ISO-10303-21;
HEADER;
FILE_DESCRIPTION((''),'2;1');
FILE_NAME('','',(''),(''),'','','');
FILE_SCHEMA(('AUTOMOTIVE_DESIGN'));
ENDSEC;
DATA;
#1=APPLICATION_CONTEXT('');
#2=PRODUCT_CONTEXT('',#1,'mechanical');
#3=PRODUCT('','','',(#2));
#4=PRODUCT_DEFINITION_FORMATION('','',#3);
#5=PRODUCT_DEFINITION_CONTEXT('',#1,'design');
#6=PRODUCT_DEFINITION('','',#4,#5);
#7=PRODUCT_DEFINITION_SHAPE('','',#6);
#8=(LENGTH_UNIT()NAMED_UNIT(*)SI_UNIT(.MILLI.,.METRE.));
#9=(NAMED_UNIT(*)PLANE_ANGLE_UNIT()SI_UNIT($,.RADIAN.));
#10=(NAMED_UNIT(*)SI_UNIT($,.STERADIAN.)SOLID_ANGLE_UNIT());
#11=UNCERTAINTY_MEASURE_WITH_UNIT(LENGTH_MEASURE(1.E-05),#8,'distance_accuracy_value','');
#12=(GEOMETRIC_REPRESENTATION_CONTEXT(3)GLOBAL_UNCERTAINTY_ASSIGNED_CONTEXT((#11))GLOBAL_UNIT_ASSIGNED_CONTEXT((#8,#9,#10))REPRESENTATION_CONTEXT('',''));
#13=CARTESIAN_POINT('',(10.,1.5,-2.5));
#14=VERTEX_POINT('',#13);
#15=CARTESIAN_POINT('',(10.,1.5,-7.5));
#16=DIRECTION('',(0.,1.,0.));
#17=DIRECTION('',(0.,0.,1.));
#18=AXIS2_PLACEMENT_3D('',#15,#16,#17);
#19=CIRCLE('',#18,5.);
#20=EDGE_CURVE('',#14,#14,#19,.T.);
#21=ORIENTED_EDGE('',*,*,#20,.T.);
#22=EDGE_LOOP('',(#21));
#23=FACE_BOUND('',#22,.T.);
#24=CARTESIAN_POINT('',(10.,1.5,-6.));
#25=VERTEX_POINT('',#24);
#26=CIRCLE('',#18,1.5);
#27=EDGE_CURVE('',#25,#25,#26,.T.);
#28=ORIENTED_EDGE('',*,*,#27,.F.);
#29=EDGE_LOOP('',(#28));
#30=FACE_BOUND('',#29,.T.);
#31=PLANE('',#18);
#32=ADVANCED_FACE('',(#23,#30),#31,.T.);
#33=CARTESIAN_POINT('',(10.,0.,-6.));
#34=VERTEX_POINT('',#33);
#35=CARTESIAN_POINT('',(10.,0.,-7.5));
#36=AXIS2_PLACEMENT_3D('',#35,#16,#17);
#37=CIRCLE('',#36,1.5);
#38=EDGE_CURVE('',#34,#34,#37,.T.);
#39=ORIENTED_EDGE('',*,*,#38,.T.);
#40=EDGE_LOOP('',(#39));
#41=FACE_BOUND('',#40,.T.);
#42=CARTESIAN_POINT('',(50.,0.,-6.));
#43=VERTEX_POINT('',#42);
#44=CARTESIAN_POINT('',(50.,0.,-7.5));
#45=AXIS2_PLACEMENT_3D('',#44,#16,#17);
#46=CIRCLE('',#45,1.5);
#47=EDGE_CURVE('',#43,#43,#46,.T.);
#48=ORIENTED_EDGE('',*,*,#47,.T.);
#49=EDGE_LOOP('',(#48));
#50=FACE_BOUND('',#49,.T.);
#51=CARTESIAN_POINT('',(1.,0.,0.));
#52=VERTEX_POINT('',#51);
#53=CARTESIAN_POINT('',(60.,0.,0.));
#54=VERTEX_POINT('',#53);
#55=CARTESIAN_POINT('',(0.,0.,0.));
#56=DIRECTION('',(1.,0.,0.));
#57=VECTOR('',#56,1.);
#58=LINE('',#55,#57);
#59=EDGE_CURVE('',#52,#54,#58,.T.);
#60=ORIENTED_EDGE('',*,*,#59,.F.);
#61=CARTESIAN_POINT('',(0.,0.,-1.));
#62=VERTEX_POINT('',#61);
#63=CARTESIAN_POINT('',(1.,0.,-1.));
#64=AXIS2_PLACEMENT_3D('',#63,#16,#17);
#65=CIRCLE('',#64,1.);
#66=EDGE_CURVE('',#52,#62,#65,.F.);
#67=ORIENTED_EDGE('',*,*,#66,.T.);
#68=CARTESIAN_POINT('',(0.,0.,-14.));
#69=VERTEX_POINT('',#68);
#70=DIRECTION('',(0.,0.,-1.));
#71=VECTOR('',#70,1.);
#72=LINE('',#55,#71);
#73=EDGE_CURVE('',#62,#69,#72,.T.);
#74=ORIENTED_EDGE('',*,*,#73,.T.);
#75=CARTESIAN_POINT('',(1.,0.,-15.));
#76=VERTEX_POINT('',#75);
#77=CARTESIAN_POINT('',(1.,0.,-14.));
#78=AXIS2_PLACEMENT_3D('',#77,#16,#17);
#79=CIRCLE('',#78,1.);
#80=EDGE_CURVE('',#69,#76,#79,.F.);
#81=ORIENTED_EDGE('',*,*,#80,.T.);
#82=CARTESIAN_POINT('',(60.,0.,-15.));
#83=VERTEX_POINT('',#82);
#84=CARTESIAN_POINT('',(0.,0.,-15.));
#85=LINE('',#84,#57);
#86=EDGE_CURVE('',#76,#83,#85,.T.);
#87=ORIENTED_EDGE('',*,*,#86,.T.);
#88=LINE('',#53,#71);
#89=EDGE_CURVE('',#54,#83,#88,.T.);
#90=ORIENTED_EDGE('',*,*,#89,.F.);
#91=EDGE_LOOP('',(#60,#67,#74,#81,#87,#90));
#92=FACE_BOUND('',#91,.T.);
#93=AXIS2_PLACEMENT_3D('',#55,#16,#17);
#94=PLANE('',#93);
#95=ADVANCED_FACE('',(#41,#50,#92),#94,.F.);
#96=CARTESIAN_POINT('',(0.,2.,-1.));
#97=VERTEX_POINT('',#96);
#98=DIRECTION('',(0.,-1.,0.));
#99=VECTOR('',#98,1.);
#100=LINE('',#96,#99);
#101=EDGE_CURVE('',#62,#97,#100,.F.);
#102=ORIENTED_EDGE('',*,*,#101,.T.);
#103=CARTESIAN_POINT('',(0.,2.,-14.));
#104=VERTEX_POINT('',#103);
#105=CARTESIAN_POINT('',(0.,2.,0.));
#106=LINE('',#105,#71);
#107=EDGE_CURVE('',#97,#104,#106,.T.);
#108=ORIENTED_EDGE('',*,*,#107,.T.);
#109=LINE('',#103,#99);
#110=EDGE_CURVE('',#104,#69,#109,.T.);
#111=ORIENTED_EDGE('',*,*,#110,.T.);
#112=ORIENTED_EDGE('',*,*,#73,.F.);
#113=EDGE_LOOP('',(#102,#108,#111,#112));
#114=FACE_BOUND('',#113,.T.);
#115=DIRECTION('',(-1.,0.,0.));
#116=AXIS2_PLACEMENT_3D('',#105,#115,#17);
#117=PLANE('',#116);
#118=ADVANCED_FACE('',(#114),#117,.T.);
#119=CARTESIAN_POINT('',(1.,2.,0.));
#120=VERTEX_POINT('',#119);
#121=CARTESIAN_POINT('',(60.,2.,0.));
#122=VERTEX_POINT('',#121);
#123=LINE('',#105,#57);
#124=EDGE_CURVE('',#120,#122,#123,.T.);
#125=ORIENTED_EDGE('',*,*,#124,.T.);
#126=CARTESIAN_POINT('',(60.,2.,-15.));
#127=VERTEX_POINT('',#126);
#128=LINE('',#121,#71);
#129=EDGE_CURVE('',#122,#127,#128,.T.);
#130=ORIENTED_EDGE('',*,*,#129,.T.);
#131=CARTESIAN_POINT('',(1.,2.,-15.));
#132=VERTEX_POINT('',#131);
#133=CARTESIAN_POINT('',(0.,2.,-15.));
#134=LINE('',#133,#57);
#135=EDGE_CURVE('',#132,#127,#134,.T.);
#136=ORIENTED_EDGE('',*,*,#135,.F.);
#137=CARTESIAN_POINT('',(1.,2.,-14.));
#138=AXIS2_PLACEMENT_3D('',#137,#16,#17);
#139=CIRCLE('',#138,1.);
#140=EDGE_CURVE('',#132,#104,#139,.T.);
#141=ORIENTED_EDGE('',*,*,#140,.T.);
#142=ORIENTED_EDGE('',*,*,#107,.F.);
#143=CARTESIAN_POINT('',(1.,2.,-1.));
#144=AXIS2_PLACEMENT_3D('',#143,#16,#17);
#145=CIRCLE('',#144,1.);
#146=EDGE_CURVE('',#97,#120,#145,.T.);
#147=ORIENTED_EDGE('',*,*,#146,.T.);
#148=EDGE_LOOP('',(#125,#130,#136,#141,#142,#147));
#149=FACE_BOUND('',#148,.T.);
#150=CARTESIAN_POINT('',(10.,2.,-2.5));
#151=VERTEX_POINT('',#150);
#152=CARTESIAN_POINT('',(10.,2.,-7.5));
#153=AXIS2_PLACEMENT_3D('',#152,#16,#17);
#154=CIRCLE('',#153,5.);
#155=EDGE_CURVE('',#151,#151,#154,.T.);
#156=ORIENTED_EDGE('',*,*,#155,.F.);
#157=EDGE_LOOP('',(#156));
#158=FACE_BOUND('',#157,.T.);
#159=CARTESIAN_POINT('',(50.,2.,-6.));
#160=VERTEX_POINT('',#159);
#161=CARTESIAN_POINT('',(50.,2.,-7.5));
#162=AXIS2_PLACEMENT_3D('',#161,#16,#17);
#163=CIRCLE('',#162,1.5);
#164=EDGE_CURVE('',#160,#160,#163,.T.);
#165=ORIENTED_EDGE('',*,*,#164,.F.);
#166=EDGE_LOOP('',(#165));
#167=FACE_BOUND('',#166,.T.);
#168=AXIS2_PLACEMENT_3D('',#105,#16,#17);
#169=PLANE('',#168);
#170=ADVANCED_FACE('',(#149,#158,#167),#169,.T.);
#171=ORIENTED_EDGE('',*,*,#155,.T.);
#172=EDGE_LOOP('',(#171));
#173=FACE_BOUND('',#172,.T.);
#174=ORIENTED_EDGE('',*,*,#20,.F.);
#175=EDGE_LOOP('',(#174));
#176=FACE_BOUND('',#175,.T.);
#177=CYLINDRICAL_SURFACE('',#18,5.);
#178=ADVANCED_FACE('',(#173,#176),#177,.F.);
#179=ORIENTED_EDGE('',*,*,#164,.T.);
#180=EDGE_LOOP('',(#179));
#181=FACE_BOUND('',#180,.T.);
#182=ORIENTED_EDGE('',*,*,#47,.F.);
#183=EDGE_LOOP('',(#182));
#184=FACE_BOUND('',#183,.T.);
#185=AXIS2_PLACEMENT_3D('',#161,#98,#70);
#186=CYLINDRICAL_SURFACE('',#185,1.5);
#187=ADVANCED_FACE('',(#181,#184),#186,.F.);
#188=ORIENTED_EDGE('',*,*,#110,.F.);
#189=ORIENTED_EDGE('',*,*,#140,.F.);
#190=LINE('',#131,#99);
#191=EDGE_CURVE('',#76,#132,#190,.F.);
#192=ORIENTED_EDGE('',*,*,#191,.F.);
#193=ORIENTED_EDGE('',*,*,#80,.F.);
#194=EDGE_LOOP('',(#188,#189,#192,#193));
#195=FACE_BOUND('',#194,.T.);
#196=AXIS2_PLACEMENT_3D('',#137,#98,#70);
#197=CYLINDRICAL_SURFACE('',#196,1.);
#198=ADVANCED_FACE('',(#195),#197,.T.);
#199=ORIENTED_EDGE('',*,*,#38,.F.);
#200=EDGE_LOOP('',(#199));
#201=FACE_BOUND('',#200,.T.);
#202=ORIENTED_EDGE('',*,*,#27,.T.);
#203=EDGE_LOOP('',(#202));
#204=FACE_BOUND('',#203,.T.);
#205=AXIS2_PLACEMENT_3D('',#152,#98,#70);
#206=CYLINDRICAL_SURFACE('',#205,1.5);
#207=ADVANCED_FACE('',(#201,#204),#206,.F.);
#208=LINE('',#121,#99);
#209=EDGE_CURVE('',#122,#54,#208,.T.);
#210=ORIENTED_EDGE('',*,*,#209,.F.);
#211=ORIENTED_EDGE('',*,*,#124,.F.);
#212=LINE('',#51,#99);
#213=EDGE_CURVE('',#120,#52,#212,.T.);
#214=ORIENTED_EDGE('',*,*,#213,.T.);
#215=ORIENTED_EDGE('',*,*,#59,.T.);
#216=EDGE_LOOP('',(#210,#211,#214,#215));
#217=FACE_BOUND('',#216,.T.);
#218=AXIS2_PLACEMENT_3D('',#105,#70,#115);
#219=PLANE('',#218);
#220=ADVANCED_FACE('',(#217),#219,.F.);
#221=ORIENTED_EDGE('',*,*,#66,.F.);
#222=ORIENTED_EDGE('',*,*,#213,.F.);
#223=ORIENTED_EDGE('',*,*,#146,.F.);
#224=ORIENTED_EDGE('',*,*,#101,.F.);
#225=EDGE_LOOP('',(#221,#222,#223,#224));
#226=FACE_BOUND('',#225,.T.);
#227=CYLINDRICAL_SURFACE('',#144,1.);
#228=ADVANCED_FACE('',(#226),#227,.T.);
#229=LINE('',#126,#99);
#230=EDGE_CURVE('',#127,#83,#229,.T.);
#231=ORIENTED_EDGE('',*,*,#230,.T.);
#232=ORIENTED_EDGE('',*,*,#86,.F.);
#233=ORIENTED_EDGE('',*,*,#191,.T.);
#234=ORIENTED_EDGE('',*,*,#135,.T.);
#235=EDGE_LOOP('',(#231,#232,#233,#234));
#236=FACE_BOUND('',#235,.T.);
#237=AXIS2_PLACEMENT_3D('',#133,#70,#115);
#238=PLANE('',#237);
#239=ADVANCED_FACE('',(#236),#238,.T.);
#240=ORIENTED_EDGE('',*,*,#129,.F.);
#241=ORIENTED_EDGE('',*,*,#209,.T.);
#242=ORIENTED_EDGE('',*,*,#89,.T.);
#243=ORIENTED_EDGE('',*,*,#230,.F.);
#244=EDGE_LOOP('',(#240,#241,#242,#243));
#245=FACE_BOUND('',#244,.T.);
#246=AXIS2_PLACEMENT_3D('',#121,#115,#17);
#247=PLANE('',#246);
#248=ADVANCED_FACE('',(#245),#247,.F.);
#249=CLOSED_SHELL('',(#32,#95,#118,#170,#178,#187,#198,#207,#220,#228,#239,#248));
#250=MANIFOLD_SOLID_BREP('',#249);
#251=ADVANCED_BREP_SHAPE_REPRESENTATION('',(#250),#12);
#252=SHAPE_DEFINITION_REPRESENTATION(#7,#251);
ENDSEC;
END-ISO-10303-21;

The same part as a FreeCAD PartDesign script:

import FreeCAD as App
import Part
import Sketcher
from FreeCAD import Vector
Q = App.Units.Quantity


def edges_at(feature, points):
    """Names of the edges that pass closest to the given points."""
    edges = feature.Shape.Edges
    near = lambda p: min(range(len(edges)), key=lambda i: edges[i].distToShape(Part.Vertex(*p))[0])
    return sorted({f"Edge{near(p) + 1}" for p in points})


def add_polygon(sketch, points):
    """Adds a closed chain of lines whose ends are joined by coincident constraints."""
    first, n = sketch.GeometryCount, len(points)
    for a, b in zip(points, points[1:] + points[:1]):
        sketch.addGeometry(Part.LineSegment(App.Vector(*a, 0), App.Vector(*b, 0)), False)
    for i in range(n):
        sketch.addConstraint(Sketcher.Constraint("Coincident", first + i, 2, first + (i + 1) % n, 1))

doc = App.newDocument("Part")
body = doc.addObject("PartDesign::Body", "Body")

# Sketch on XZ plane
sketch1 = body.newObject("Sketcher::SketchObject", "Sketch")
sketch1.AttachmentSupport = (doc.getObject("XZ_Plane"), [""])
sketch1.MapMode = "FlatFace"
add_polygon(sketch1, [(0, 0), (60, 0), (60, -15), (0, -15)])  # lines 0-3
sketch1.addGeometry(Part.Circle(Vector(50, -7.5, 0), Vector(0, 0, 1), 1.5), False)  # 4
sketch1.addGeometry(Part.Circle(Vector(10, -7.5, 0), Vector(0, 0, 1), 1.5), False)  # 5
sketch1.addConstraint(Sketcher.Constraint("Horizontal", 0))
sketch1.addConstraint(Sketcher.Constraint("Vertical", 1))
sketch1.addConstraint(Sketcher.Constraint("Horizontal", 2))
sketch1.addConstraint(Sketcher.Constraint("Vertical", 3))
sketch1.addConstraint(Sketcher.Constraint("Coincident", 3, 2, -1, 1))
sketch1.addConstraint(Sketcher.Constraint("Equal", 4, 5))
sketch1.addConstraint(Sketcher.Constraint("Horizontal", 4, 3, 5, 3))
sketch1.addConstraint(Sketcher.Constraint("Diameter", 4, Q("3 mm")))
sketch1.addConstraint(Sketcher.Constraint("DistanceX", 0, 1, 0, 2, Q("60 mm")))
sketch1.addConstraint(Sketcher.Constraint("DistanceY", 1, 2, 1, 1, Q("15 mm")))
sketch1.addConstraint(Sketcher.Constraint("DistanceX", -1, 1, 4, 3, Q("50 mm")))
sketch1.addConstraint(Sketcher.Constraint("DistanceX", -1, 1, 5, 3, Q("10 mm")))
sketch1.addConstraint(Sketcher.Constraint("DistanceY", 4, 3, -1, 1, Q("7.5 mm")))
pad1 = body.newObject("PartDesign::Pad", "Pad")
pad1.Profile = sketch1
pad1.Length = 2
pad1.Reversed = True

# Sketch on XZ plane
sketch2 = body.newObject("Sketcher::SketchObject", "Sketch001")
sketch2.AttachmentSupport = (doc.getObject("XZ_Plane"), [""])
sketch2.MapMode = "FlatFace"
sketch2.AttachmentOffset = App.Placement(Vector(0, 0, -2), App.Rotation())
sketch2.addGeometry(Part.Circle(Vector(10, -8, 0), Vector(0, 0, 1), 5), False)
sketch2.addConstraint(Sketcher.Constraint("Diameter", 0, Q("10 mm")))
sketch2.addConstraint(Sketcher.Constraint("DistanceX", -1, 1, 0, 3, Q("10 mm")))
sketch2.addConstraint(Sketcher.Constraint("DistanceY", 0, 3, -1, 1, Q("7.5 mm")))
pocket1 = body.newObject("PartDesign::Pocket", "Pocket")
pocket1.Profile = sketch2
pocket1.Length = 0.5
pocket1.Reversed = True
doc.recompute()

fillet = body.newObject("PartDesign::Fillet", "Fillet")
fillet.Base = (pocket1, edges_at(pocket1, [(0, 1, 0), (0, 1, -15)]))
fillet.Radius = 1

doc.recompute()
